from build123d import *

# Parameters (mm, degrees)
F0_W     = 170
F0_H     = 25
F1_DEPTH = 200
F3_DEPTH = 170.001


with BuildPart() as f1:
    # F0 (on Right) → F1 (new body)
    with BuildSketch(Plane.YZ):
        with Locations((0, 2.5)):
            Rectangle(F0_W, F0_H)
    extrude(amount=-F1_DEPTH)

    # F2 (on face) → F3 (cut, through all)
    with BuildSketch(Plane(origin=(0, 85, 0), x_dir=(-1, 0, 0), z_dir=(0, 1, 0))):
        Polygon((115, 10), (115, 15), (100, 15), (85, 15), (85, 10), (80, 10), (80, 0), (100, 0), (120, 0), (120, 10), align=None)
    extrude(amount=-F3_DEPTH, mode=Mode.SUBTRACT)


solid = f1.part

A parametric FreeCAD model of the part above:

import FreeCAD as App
import Part
import Sketcher
Q = App.Units.Quantity


def add_polygon(sketch, points):
    """Adds a closed chain of lines whose ends are joined by coincident constraints."""
    first, n = sketch.GeometryCount, len(points)
    for a, b in zip(points, points[1:] + points[:1]):
        sketch.addGeometry(Part.LineSegment(App.Vector(*a, 0), App.Vector(*b, 0)), False)
    for i in range(n):
        sketch.addConstraint(Sketcher.Constraint("Coincident", first + i, 2, first + (i + 1) % n, 1))

doc = App.newDocument("Part")
body = doc.addObject("PartDesign::Body", "Body")

# Sketch on YZ plane
sketch1 = body.newObject("Sketcher::SketchObject", "Sketch")
sketch1.AttachmentSupport = (doc.getObject("YZ_Plane"), [""])
sketch1.MapMode = "FlatFace"
add_polygon(sketch1, [(-85, 15), (-85, -10), (85, -10), (85, 15)])  # lines 0-3
sketch1.addConstraint([
    Sketcher.Constraint("Vertical", 0),
    Sketcher.Constraint("Horizontal", 1),
    Sketcher.Constraint("Vertical", 2),
    Sketcher.Constraint("Horizontal", 3),
    Sketcher.Constraint("DistanceX", 1, 1, 1, 2, Q("170 mm")),
    Sketcher.Constraint("DistanceY", 0, 2, 0, 1, Q("25 mm")),
    Sketcher.Constraint("DistanceX", 0, 2, -1, 1, Q("85 mm")),
    Sketcher.Constraint("DistanceY", 0, 2, -1, 1, Q("10 mm")),
])
pad1 = body.newObject("PartDesign::Pad", "Pad")
pad1.Profile = sketch1
pad1.Length = 200
pad1.Reversed = True

# Sketch on XZ plane
sketch2 = body.newObject("Sketcher::SketchObject", "Sketch001")
sketch2.AttachmentSupport = (doc.getObject("XZ_Plane"), [""])
sketch2.MapMode = "FlatFace"
sketch2.AttachmentOffset = App.Placement(App.Vector(0, 0, -85), App.Rotation())
add_polygon(sketch2, [(-115, 10), (-115, 15), (-85, 15), (-85, 10), (-80, 10), (-80, 0), (-120, 0), (-120, 10)])  # lines 0-7
sketch2.addConstraint([
    Sketcher.Constraint("Vertical", 0),
    Sketcher.Constraint("Horizontal", 1),
    Sketcher.Constraint("Vertical", 2),
    Sketcher.Constraint("Horizontal", 3),
    Sketcher.Constraint("Vertical", 4),
    Sketcher.Constraint("Horizontal", 5),
    Sketcher.Constraint("Vertical", 6),
    Sketcher.Constraint("Horizontal", 7),
    Sketcher.Constraint("PointOnObject", 4, 2, -1),
    Sketcher.Constraint("Horizontal", 3, 2, 6, 2),
    Sketcher.Constraint("Equal", 3, 7),
    Sketcher.Constraint("Equal", 7, 0),
    Sketcher.Constraint("DistanceX", 1, 1, 1, 2, Q("30 mm")),
    Sketcher.Constraint("DistanceX", 3, 1, 3, 2, Q("5 mm")),
    Sketcher.Constraint("DistanceY", 4, 2, 4, 1, Q("10 mm")),
    Sketcher.Constraint("DistanceX", 0, 2, -1, 1, Q("115 mm")),
])
pocket1 = body.newObject("PartDesign::Pocket", "Pocket")
pocket1.Profile = sketch2
pocket1.Type = "ThroughAll"
pocket1.Reversed = True

doc.recompute()
